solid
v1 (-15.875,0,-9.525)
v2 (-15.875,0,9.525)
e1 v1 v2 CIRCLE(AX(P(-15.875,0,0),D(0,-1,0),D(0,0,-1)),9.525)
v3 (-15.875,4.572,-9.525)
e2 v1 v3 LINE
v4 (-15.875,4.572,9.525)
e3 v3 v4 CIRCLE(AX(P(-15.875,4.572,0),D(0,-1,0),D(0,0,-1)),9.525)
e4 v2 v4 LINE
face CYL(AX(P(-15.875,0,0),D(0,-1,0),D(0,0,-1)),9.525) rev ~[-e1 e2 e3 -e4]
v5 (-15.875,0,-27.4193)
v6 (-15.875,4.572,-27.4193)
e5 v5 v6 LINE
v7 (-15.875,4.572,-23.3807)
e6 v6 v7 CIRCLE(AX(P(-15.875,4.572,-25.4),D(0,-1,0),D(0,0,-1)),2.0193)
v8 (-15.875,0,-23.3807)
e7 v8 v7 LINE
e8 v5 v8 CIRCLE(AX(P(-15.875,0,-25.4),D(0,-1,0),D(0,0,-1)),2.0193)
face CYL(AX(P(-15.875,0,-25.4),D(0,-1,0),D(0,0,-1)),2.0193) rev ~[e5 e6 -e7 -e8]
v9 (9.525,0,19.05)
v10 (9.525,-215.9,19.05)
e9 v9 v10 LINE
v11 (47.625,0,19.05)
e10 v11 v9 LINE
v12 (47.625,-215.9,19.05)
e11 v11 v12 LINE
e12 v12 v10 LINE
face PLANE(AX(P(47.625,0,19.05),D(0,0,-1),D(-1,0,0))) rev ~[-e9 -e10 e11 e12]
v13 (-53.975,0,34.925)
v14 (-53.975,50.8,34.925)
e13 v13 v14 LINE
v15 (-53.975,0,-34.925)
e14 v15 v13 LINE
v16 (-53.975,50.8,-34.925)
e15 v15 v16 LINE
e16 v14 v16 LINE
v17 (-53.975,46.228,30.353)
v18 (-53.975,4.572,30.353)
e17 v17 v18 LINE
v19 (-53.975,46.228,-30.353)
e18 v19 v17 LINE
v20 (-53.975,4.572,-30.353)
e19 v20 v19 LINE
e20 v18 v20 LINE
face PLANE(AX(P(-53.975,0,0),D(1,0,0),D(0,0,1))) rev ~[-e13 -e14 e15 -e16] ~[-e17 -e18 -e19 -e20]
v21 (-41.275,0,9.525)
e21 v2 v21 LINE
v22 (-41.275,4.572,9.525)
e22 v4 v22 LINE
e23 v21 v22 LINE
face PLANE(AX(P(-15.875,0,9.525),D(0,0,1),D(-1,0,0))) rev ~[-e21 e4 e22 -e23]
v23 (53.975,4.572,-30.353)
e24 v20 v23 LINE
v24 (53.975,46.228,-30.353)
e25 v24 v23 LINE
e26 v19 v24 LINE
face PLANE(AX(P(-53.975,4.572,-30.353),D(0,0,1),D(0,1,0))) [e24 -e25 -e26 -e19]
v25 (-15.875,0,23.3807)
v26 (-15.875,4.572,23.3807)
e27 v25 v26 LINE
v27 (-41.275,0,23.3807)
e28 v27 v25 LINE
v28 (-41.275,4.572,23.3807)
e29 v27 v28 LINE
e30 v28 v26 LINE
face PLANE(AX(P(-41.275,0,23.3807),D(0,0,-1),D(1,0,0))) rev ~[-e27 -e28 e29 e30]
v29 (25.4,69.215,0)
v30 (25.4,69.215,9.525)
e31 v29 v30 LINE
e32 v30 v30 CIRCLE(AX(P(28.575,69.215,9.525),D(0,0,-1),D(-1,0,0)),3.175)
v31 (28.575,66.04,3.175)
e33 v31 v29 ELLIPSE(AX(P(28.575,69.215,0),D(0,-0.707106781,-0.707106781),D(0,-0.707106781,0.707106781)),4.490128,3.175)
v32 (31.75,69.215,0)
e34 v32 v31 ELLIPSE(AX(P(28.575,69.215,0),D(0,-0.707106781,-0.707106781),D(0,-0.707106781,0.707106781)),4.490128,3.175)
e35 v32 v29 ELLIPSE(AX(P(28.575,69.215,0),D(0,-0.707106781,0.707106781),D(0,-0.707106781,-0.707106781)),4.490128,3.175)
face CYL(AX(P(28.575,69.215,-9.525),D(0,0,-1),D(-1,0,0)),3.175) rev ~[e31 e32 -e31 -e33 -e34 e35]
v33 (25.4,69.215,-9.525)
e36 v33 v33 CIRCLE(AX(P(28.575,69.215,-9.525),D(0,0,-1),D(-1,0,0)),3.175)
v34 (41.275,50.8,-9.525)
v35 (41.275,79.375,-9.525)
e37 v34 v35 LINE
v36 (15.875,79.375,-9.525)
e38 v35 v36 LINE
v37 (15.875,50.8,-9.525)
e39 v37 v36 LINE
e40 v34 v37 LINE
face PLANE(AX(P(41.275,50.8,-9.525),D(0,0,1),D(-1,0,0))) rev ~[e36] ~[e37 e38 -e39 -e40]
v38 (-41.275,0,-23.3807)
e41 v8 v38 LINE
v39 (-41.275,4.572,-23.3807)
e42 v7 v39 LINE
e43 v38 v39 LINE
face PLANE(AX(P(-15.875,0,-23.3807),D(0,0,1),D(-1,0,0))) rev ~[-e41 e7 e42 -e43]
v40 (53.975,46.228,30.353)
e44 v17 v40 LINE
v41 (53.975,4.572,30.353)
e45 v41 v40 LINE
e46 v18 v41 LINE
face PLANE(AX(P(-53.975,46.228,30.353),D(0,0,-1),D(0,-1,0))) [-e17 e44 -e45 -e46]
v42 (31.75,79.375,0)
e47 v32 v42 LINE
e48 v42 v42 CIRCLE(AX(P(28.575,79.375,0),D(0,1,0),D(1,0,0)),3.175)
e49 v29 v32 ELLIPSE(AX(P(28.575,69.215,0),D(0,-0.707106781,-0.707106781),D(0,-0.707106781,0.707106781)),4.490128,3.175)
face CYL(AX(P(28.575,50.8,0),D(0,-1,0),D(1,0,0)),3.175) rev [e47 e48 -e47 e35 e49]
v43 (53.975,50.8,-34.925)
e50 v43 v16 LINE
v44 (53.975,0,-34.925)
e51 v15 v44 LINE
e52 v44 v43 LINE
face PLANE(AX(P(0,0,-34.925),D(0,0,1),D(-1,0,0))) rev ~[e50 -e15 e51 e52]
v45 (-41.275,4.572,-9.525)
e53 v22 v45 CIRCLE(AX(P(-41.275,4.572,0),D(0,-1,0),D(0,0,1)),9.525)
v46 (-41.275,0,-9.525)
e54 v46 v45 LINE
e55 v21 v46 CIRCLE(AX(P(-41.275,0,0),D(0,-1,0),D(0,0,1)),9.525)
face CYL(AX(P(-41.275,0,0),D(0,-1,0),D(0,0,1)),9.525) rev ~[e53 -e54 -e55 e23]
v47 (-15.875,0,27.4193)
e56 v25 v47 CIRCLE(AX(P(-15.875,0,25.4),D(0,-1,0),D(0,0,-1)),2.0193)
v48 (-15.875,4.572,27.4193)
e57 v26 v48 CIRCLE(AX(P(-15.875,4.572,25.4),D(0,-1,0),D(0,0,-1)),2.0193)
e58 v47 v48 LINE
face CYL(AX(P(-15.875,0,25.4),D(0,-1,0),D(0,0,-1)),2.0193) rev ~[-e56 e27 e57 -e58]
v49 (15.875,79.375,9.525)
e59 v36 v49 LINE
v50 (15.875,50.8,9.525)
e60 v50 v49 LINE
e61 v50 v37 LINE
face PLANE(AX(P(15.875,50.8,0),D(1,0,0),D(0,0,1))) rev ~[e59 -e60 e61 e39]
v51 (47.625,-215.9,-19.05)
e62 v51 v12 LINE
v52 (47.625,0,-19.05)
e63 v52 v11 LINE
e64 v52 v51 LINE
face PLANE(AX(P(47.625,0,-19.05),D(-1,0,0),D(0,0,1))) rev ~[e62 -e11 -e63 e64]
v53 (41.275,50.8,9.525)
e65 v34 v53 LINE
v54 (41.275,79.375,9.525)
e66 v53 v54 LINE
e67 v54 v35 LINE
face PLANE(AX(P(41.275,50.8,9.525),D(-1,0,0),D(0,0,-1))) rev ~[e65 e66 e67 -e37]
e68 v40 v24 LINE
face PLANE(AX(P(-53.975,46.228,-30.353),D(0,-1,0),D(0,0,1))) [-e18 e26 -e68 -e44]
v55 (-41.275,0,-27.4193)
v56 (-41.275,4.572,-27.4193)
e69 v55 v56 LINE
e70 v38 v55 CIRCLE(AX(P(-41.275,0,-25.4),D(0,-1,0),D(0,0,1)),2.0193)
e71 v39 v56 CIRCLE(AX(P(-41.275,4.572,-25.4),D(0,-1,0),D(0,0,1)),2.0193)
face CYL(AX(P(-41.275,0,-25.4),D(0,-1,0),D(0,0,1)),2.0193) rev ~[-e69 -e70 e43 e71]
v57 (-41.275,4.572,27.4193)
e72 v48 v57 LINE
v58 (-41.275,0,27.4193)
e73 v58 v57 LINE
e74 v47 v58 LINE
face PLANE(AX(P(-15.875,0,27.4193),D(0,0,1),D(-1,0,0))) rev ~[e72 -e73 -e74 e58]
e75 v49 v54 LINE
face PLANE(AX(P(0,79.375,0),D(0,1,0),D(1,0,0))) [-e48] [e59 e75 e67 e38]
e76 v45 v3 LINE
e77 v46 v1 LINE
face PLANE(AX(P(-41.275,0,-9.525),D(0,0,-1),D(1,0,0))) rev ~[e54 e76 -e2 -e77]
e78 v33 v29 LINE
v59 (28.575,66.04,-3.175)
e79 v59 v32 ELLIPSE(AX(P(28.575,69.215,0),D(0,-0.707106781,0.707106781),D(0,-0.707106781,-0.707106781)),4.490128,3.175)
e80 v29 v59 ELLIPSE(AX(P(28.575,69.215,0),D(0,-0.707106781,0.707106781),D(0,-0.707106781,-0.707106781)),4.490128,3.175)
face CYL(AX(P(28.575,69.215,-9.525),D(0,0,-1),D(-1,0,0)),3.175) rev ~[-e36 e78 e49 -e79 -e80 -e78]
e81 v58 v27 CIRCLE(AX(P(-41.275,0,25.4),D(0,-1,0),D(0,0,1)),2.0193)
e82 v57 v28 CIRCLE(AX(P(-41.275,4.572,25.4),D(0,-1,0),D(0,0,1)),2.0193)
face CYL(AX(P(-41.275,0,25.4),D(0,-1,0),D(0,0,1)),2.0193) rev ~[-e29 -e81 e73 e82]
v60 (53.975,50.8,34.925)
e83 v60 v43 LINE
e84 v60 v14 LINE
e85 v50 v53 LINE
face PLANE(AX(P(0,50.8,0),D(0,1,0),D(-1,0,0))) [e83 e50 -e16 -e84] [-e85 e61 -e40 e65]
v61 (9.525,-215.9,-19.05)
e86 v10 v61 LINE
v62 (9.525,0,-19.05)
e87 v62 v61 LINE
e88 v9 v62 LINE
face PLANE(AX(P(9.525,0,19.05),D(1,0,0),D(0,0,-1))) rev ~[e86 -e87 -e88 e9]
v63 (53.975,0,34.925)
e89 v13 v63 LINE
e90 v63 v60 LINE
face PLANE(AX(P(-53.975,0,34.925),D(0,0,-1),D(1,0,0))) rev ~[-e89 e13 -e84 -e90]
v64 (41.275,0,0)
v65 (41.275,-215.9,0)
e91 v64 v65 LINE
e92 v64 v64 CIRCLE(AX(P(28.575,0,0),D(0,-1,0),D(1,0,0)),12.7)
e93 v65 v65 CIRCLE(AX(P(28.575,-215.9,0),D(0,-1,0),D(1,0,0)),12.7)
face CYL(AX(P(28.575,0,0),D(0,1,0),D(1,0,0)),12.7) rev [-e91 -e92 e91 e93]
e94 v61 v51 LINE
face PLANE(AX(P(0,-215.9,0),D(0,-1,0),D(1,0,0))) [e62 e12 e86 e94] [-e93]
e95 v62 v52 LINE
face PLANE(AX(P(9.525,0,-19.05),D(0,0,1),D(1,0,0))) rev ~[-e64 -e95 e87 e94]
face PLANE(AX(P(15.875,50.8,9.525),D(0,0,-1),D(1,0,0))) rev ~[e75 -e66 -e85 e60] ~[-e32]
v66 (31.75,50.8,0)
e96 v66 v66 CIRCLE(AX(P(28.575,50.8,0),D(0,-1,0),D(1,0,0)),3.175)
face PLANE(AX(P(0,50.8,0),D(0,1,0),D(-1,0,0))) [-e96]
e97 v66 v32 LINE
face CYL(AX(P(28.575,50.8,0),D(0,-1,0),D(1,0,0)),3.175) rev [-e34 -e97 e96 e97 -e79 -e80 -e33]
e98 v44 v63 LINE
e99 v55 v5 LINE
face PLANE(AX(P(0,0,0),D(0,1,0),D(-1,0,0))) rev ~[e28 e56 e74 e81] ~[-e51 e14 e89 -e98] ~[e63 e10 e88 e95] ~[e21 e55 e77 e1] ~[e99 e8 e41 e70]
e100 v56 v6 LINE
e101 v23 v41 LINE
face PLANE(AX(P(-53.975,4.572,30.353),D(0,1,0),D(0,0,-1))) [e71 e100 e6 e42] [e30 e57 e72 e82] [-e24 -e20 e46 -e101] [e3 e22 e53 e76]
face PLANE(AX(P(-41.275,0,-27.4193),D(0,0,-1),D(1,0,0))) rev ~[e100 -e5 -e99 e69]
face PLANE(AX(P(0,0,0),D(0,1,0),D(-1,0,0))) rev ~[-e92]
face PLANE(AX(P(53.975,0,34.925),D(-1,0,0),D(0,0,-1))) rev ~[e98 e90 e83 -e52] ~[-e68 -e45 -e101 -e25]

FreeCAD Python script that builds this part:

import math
import FreeCAD as App
import Part
import Sketcher
Q = App.Units.Quantity

doc = App.newDocument("Part")
body = doc.addObject("PartDesign::Body", "Body")

# Sketch on XZ plane
sketch1 = body.newObject("Sketcher::SketchObject", "Sketch")
sketch1.AttachmentSupport = (doc.getObject("XZ_Plane"), [""])
sketch1.MapMode = "FlatFace"
sketch1.addGeometry([
    Part.LineSegment(App.Vector(-54, 35, 0), App.Vector(54, 35, 0)),
    Part.LineSegment(App.Vector(54, 35, 0), App.Vector(54, -35, 0)),
    Part.LineSegment(App.Vector(54, -35, 0), App.Vector(-54, -35, 0)),
    Part.LineSegment(App.Vector(-54, -35, 0), App.Vector(-54, 35, 0)),
], False)
sketch1.addConstraint([
    Sketcher.Constraint("Coincident", 0, 2, 1, 1),
    Sketcher.Constraint("Coincident", 1, 2, 2, 1),
    Sketcher.Constraint("Coincident", 2, 2, 3, 1),
    Sketcher.Constraint("Coincident", 3, 2, 0, 1),
    Sketcher.Constraint("Horizontal", 0),
    Sketcher.Constraint("Vertical", 1),
    Sketcher.Constraint("Horizontal", 2),
    Sketcher.Constraint("Vertical", 3),
    Sketcher.Constraint("Symmetric", 0, 2, 2, 2, -1, 1),
    Sketcher.Constraint("DistanceX", 0, 1, 0, 2, Q("4.25 in")),
    Sketcher.Constraint("DistanceY", 1, 2, 1, 1, Q("2.75 in")),
])
pad1 = body.newObject("PartDesign::Pad", "Pad")
pad1.Profile = sketch1
pad1.Length = Q("2 in")
pad1.Reversed = True

# Sketch on XZ plane
sketch2 = body.newObject("Sketcher::SketchObject", "Sketch001")
sketch2.AttachmentSupport = (doc.getObject("XZ_Plane"), [""])
sketch2.MapMode = "FlatFace"
sketch2.AttachmentOffset = App.Placement(App.Vector(0, 0, -2 * 25.4), App.Rotation())
sketch2.addGeometry([
    Part.LineSegment(App.Vector(41.3, 9.5, 0), App.Vector(41.3, -9.5, 0)),  # 0
    Part.LineSegment(App.Vector(41.3, -9.5, 0), App.Vector(15.9, -9.5, 0)),  # 1
    Part.LineSegment(App.Vector(15.9, -9.5, 0), App.Vector(15.9, 9.5, 0)),  # 2
    Part.LineSegment(App.Vector(15.9, 9.5, 0), App.Vector(41.3, 9.5, 0)),  # 3
    Part.Circle(App.Vector(28.6, 0, 0), App.Vector(0, 0, 1), 3.2),  # 4
], False)
sketch2.addConstraint([
    Sketcher.Constraint("Coincident", 0, 2, 1, 1),
    Sketcher.Constraint("Coincident", 1, 2, 2, 1),
    Sketcher.Constraint("Coincident", 2, 2, 3, 1),
    Sketcher.Constraint("Coincident", 3, 2, 0, 1),
    Sketcher.Constraint("Vertical", 0),
    Sketcher.Constraint("Horizontal", 1),
    Sketcher.Constraint("Vertical", 2),
    Sketcher.Constraint("Horizontal", 3),
    Sketcher.Constraint("PointOnObject", 4, 3, -1),
    Sketcher.Constraint("Diameter", 4, Q("0.25 in")),
    Sketcher.Constraint("DistanceX", 1, 2, 1, 1, Q("1 in")),
    Sketcher.Constraint("DistanceY", 0, 2, 0, 1, Q("0.75 in")),
    Sketcher.Constraint("DistanceX", 4, 3, 0, 2, Q("0.5 in")),
    Sketcher.Constraint("DistanceX", -1, 1, 4, 3, Q("1.125 in")),
    Sketcher.Constraint("DistanceY", 0, 2, -1, 1, Q("0.375 in")),
])
pad2 = body.newObject("PartDesign::Pad", "Pad001")
pad2.Profile = sketch2
pad2.Length = Q("1.125 in")
pad2.Reversed = True

# Sketch on YZ plane
sketch3 = body.newObject("Sketcher::SketchObject", "Sketch002")
sketch3.AttachmentSupport = (doc.getObject("YZ_Plane"), [""])
sketch3.MapMode = "FlatFace"
sketch3.AttachmentOffset = App.Placement(App.Vector(0, 0, -2.125 * 25.4), App.Rotation())
sketch3.addGeometry([
    Part.LineSegment(App.Vector(5, -30, 0), App.Vector(5, 30, 0)),
    Part.LineSegment(App.Vector(5, 30, 0), App.Vector(46, 30, 0)),
    Part.LineSegment(App.Vector(46, 30, 0), App.Vector(46, -30, 0)),
    Part.LineSegment(App.Vector(46, -30, 0), App.Vector(5, -30, 0)),
], False)
sketch3.addConstraint([
    Sketcher.Constraint("Coincident", 0, 2, 1, 1),
    Sketcher.Constraint("Coincident", 1, 2, 2, 1),
    Sketcher.Constraint("Coincident", 2, 2, 3, 1),
    Sketcher.Constraint("Coincident", 3, 2, 0, 1),
    Sketcher.Constraint("Vertical", 0),
    Sketcher.Constraint("Horizontal", 1),
    Sketcher.Constraint("Vertical", 2),
    Sketcher.Constraint("Horizontal", 3),
    Sketcher.Constraint("DistanceX", -1, 1, 0, 2, Q("0.18 in")),
    Sketcher.Constraint("DistanceX", 1, 1, 1, 2, Q("1.64 in")),
    Sketcher.Constraint("DistanceY", 0, 1, 0, 2, Q("2.39 in")),
    Sketcher.Constraint("DistanceY", -1, 1, 0, 2, Q("1.195 in")),
])
pocket1 = body.newObject("PartDesign::Pocket", "Pocket")
pocket1.Profile = sketch3
pocket1.Type = "UpToFirst"
pocket1.Reversed = True

# Sketch on XZ plane
sketch4 = body.newObject("Sketcher::SketchObject", "Sketch003")
sketch4.AttachmentSupport = (doc.getObject("XZ_Plane"), [""])
sketch4.MapMode = "FlatFace"
sketch4.addGeometry([
    Part.LineSegment(App.Vector(-15.9, 9.5, 0), App.Vector(-41.3, 9.5, 0)),  # 0
    Part.ArcOfCircle(Part.Circle(App.Vector(-41.3, 0, 0), App.Vector(0, 0, 1), 9.5), math.radians(90), math.radians(270)),  # 1
    Part.LineSegment(App.Vector(-41.3, -9.5, 0), App.Vector(-15.9, -9.5, 0)),  # 2
    Part.ArcOfCircle(Part.Circle(App.Vector(-15.9, 0, 0), App.Vector(0, 0, 1), 9.5), math.radians(-90), math.radians(90)),  # 3
    Part.LineSegment(App.Vector(-15.9, -23.4, 0), App.Vector(-41.3, -23.4, 0)),  # 4
    Part.ArcOfCircle(Part.Circle(App.Vector(-41.3, -25.4, 0), App.Vector(0, 0, 1), 2), math.radians(90), math.radians(270)),  # 5
    Part.LineSegment(App.Vector(-41.3, -27.4, 0), App.Vector(-15.9, -27.4, 0)),  # 6
    Part.ArcOfCircle(Part.Circle(App.Vector(-15.9, -25.4, 0), App.Vector(0, 0, 1), 2), math.radians(-90), math.radians(90)),  # 7
    Part.LineSegment(App.Vector(-15.9, 27.4, 0), App.Vector(-41.3, 27.4, 0)),  # 8
    Part.ArcOfCircle(Part.Circle(App.Vector(-41.3, 25.4, 0), App.Vector(0, 0, 1), 2), math.radians(90), math.radians(270)),  # 9
    Part.LineSegment(App.Vector(-41.3, 23.4, 0), App.Vector(-15.9, 23.4, 0)),  # 10
    Part.ArcOfCircle(Part.Circle(App.Vector(-15.9, 25.4, 0), App.Vector(0, 0, 1), 2), math.radians(-90), math.radians(90)),  # 11
], False)
sketch4.addConstraint([
    Sketcher.Constraint("Tangent", 0, 2, 1, 1),
    Sketcher.Constraint("Tangent", 1, 2, 2, 1),
    Sketcher.Constraint("Tangent", 2, 2, 3, 1),
    Sketcher.Constraint("Tangent", 3, 2, 0, 1),
    Sketcher.Constraint("Tangent", 4, 2, 5, 1),
    Sketcher.Constraint("Tangent", 5, 2, 6, 1),
    Sketcher.Constraint("Tangent", 6, 2, 7, 1),
    Sketcher.Constraint("Tangent", 7, 2, 4, 1),
    Sketcher.Constraint("Tangent", 8, 2, 9, 1),
    Sketcher.Constraint("Tangent", 9, 2, 10, 1),
    Sketcher.Constraint("Tangent", 10, 2, 11, 1),
    Sketcher.Constraint("Tangent", 11, 2, 8, 1),
    Sketcher.Constraint("Horizontal", 0),
    Sketcher.Constraint("Horizontal", 2),
    Sketcher.Constraint("Horizontal", 4),
    Sketcher.Constraint("Horizontal", 6),
    Sketcher.Constraint("Horizontal", 8),
    Sketcher.Constraint("Horizontal", 10),
    Sketcher.Constraint("Equal", 7, 9),
    Sketcher.Constraint("Symmetric", 5, 3, 9, 3, -1),
    Sketcher.Constraint("PointOnObject", 1, 3, -1),
    Sketcher.Constraint("Vertical", 1, 3, 5, 3),
    Sketcher.Constraint("Vertical", 3, 3, 7, 3),
    Sketcher.Constraint("Vertical", 7, 3, 11, 3),
    Sketcher.Constraint("DistanceX", 0, 2, 0, 1, Q("1 in")),
    Sketcher.Constraint("DistanceY", 5, 3, -1, 1, Q("1 in")),
    Sketcher.Constraint("Radius", 1, Q("0.375 in")),
    Sketcher.Constraint("Radius", 5, Q("0.0795 in")),
    Sketcher.Constraint("DistanceX", 1, 3, -1, 1, Q("1.625 in")),
])
pocket2 = body.newObject("PartDesign::Pocket", "Pocket001")
pocket2.Profile = sketch4
pocket2.Length = Q("0.18 in")

# Sketch on XZ plane
sketch5 = body.newObject("Sketcher::SketchObject", "Sketch004")
sketch5.AttachmentSupport = (doc.getObject("XZ_Plane"), [""])
sketch5.MapMode = "FlatFace"
sketch5.addGeometry([
    Part.LineSegment(App.Vector(10, 19, 0), App.Vector(10, -19, 0)),  # 0
    Part.LineSegment(App.Vector(10, -19, 0), App.Vector(48, -19, 0)),  # 1
    Part.LineSegment(App.Vector(48, -19, 0), App.Vector(48, 19, 0)),  # 2
    Part.LineSegment(App.Vector(48, 19, 0), App.Vector(10, 19, 0)),  # 3
    Part.Circle(App.Vector(29, 0, 0), App.Vector(0, 0, 1), 13),  # 4
], False)
sketch5.addConstraint([
    Sketcher.Constraint("Coincident", 0, 2, 1, 1),
    Sketcher.Constraint("Coincident", 1, 2, 2, 1),
    Sketcher.Constraint("Coincident", 2, 2, 3, 1),
    Sketcher.Constraint("Coincident", 3, 2, 0, 1),
    Sketcher.Constraint("Vertical", 0),
    Sketcher.Constraint("Horizontal", 1),
    Sketcher.Constraint("Vertical", 2),
    Sketcher.Constraint("Horizontal", 3),
    Sketcher.Constraint("PointOnObject", 4, 3, -1),
    Sketcher.Constraint("Equal", 3, 0),
    Sketcher.Constraint("Diameter", 4, Q("1 in")),
    Sketcher.Constraint("DistanceX", 1, 1, 1, 2, Q("1.5 in")),
    Sketcher.Constraint("DistanceY", 0, 2, -1, 1, Q("0.75 in")),
    Sketcher.Constraint("DistanceX", 0, 2, 4, 3, Q("0.75 in")),
    Sketcher.Constraint("DistanceX", -1, 1, 4, 3, Q("1.125 in")),
])
pad3 = body.newObject("PartDesign::Pad", "Pad002")
pad3.Profile = sketch5
pad3.Length = Q("8.5 in")

# Sketch on XY plane
sketch6 = body.newObject("Sketcher::SketchObject", "Sketch005")
sketch6.AttachmentSupport = (doc.getObject("XY_Plane"), [""])
sketch6.MapMode = "FlatFace"
sketch6.AttachmentOffset = App.Placement(App.Vector(0, 0, -0.375 * 25.4), App.Rotation())
sketch6.addGeometry(Part.Circle(App.Vector(28.6, 69.2, 0), App.Vector(0, 0, 1), 3.2), False)
sketch6.addConstraint([
    Sketcher.Constraint("Diameter", 0, Q("0.25 in")),
    Sketcher.Constraint("DistanceX", -1, 1, 0, 3, Q("1.125 in")),
    Sketcher.Constraint("DistanceY", -1, 1, 0, 3, Q("2.725 in")),
])
pocket3 = body.newObject("PartDesign::Pocket", "Pocket002")
pocket3.Profile = sketch6
pocket3.Length = Q("0.75 in")
pocket3.Reversed = True

doc.recompute()
